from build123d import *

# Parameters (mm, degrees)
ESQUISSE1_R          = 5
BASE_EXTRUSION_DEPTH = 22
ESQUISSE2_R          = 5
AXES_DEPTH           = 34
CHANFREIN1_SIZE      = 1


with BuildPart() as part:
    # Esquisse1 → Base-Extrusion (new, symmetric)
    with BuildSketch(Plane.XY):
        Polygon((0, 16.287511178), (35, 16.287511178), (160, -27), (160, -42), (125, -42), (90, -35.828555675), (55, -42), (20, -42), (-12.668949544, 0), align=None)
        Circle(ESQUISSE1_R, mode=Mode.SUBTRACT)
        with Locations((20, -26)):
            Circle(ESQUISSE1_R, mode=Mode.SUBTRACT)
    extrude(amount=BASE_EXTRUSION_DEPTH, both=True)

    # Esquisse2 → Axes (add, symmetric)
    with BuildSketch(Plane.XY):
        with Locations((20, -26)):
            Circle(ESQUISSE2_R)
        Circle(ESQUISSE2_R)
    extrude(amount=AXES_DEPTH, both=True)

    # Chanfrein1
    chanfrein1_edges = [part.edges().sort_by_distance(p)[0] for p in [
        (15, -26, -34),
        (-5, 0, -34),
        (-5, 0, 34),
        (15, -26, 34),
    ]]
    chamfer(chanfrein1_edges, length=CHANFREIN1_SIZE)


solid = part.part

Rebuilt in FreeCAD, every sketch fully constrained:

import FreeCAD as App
import Part
import Sketcher
from FreeCAD import Vector
Q = App.Units.Quantity


def edges_at(feature, points):
    """Names of the edges that pass closest to the given points."""
    edges = feature.Shape.Edges
    near = lambda p: min(range(len(edges)), key=lambda i: edges[i].distToShape(Part.Vertex(*p))[0])
    return sorted({f"Edge{near(p) + 1}" for p in points})


def add_polygon(sketch, points):
    """Adds a closed chain of lines whose ends are joined by coincident constraints."""
    first, n = sketch.GeometryCount, len(points)
    for a, b in zip(points, points[1:] + points[:1]):
        sketch.addGeometry(Part.LineSegment(App.Vector(*a, 0), App.Vector(*b, 0)), False)
    for i in range(n):
        sketch.addConstraint(Sketcher.Constraint("Coincident", first + i, 2, first + (i + 1) % n, 1))

doc = App.newDocument("Part")
body = doc.addObject("PartDesign::Body", "Body")

sketch1 = doc.addObject("Sketcher::SketchObject", "Sketch")
body.addObject(sketch1)
sketch1.AttachmentSupport = (doc.XY_Plane, [""])
sketch1.MapMode = "FlatFace"
add_polygon(sketch1, [(35, 16), (0, 16), (-13, 0), (20, -42), (55, -42), (90, -36), (125, -42), (160, -42), (160, -27)])
sketch1.addGeometry(Part.Circle(Vector(20, -26, 0), Vector(0, 0, 1), 5), False)
sketch1.addGeometry(Part.Circle(Vector(0, 0, 0), Vector(0, 0, 1), 5), False)
sketch1.addConstraint(Sketcher.Constraint("Horizontal", 0))
sketch1.addConstraint(Sketcher.Constraint("Horizontal", 3))
sketch1.addConstraint(Sketcher.Constraint("Horizontal", 6))
sketch1.addConstraint(Sketcher.Constraint("Vertical", 7))
sketch1.addConstraint(Sketcher.Constraint("Coincident", 10, 3, -1, 1))
sketch1.addConstraint(Sketcher.Constraint("Equal", 9, 10))
sketch1.addConstraint(Sketcher.Constraint("PointOnObject", 0, 2, -2))
sketch1.addConstraint(Sketcher.Constraint("PointOnObject", 1, 2, -1))
sketch1.addConstraint(Sketcher.Constraint("Horizontal", 3, 2, 5, 2))
sketch1.addConstraint(Sketcher.Constraint("Vertical", 9, 3, 2, 2))
sketch1.addConstraint(Sketcher.Constraint("Equal", 0, 3))
sketch1.addConstraint(Sketcher.Constraint("Equal", 3, 6))
sketch1.addConstraint(Sketcher.Constraint("Equal", 4, 5))
sketch1.addConstraint(Sketcher.Constraint("Diameter", 9, Q("10 mm")))
sketch1.addConstraint(Sketcher.Constraint("DistanceX", 0, 2, 0, 1, Q("35 mm")))
sketch1.addConstraint(Sketcher.Constraint("DistanceY", 7, 1, 7, 2, Q("15 mm")))
sketch1.addConstraint(Sketcher.Constraint("Angle", 4, Q("10 deg")))
sketch1.addConstraint(Sketcher.Constraint("DistanceX", -1, 1, 9, 3, Q("20 mm")))
sketch1.addConstraint(Sketcher.Constraint("DistanceY", 9, 3, -1, 1, Q("26 mm")))
sketch1.addConstraint(Sketcher.Constraint("DistanceY", 2, 2, -1, 1, Q("42 mm")))
sketch1.addConstraint(Sketcher.Constraint("DistanceX", -1, 1, 4, 2, Q("90 mm")))
sketch1.addConstraint(Sketcher.Constraint("Distance", 2, Q("53.209588 mm")))
sketch1.addConstraint(Sketcher.Constraint("DistanceY", -1, 1, 0, 2, Q("16.287511 mm")))
pad1 = doc.addObject("PartDesign::Pad", "Pad")
body.addObject(pad1)
pad1.Profile = sketch1
pad1.Length = 44
pad1.Midplane = True

sketch2 = doc.addObject("Sketcher::SketchObject", "Sketch001")
body.addObject(sketch2)
sketch2.AttachmentSupport = (doc.XY_Plane, [""])
sketch2.MapMode = "FlatFace"
sketch2.addGeometry(Part.Circle(Vector(20, -26, 0), Vector(0, 0, 1), 5), False)
sketch2.addGeometry(Part.Circle(Vector(0, 0, 0), Vector(0, 0, 1), 5), False)
sketch2.addConstraint(Sketcher.Constraint("Coincident", 1, 3, -1, 1))
sketch2.addConstraint(Sketcher.Constraint("Equal", 0, 1))
sketch2.addConstraint(Sketcher.Constraint("Diameter", 0, Q("10 mm")))
sketch2.addConstraint(Sketcher.Constraint("DistanceX", -1, 1, 0, 3, Q("20 mm")))
sketch2.addConstraint(Sketcher.Constraint("DistanceY", 0, 3, -1, 1, Q("26 mm")))
pad2 = doc.addObject("PartDesign::Pad", "Pad001")
body.addObject(pad2)
pad2.Profile = sketch2
pad2.Length = 68
pad2.Midplane = True
doc.recompute()

chamfer = doc.addObject("PartDesign::Chamfer", "Chamfer")
body.addObject(chamfer)
chamfer.Base = (pad2, edges_at(pad2, [
    (15, -26, -34),
    (-5, 0, -34),
    (-5, 0, 34),
    (15, -26, 34),
]))
chamfer.Size = 1

doc.recompute()
